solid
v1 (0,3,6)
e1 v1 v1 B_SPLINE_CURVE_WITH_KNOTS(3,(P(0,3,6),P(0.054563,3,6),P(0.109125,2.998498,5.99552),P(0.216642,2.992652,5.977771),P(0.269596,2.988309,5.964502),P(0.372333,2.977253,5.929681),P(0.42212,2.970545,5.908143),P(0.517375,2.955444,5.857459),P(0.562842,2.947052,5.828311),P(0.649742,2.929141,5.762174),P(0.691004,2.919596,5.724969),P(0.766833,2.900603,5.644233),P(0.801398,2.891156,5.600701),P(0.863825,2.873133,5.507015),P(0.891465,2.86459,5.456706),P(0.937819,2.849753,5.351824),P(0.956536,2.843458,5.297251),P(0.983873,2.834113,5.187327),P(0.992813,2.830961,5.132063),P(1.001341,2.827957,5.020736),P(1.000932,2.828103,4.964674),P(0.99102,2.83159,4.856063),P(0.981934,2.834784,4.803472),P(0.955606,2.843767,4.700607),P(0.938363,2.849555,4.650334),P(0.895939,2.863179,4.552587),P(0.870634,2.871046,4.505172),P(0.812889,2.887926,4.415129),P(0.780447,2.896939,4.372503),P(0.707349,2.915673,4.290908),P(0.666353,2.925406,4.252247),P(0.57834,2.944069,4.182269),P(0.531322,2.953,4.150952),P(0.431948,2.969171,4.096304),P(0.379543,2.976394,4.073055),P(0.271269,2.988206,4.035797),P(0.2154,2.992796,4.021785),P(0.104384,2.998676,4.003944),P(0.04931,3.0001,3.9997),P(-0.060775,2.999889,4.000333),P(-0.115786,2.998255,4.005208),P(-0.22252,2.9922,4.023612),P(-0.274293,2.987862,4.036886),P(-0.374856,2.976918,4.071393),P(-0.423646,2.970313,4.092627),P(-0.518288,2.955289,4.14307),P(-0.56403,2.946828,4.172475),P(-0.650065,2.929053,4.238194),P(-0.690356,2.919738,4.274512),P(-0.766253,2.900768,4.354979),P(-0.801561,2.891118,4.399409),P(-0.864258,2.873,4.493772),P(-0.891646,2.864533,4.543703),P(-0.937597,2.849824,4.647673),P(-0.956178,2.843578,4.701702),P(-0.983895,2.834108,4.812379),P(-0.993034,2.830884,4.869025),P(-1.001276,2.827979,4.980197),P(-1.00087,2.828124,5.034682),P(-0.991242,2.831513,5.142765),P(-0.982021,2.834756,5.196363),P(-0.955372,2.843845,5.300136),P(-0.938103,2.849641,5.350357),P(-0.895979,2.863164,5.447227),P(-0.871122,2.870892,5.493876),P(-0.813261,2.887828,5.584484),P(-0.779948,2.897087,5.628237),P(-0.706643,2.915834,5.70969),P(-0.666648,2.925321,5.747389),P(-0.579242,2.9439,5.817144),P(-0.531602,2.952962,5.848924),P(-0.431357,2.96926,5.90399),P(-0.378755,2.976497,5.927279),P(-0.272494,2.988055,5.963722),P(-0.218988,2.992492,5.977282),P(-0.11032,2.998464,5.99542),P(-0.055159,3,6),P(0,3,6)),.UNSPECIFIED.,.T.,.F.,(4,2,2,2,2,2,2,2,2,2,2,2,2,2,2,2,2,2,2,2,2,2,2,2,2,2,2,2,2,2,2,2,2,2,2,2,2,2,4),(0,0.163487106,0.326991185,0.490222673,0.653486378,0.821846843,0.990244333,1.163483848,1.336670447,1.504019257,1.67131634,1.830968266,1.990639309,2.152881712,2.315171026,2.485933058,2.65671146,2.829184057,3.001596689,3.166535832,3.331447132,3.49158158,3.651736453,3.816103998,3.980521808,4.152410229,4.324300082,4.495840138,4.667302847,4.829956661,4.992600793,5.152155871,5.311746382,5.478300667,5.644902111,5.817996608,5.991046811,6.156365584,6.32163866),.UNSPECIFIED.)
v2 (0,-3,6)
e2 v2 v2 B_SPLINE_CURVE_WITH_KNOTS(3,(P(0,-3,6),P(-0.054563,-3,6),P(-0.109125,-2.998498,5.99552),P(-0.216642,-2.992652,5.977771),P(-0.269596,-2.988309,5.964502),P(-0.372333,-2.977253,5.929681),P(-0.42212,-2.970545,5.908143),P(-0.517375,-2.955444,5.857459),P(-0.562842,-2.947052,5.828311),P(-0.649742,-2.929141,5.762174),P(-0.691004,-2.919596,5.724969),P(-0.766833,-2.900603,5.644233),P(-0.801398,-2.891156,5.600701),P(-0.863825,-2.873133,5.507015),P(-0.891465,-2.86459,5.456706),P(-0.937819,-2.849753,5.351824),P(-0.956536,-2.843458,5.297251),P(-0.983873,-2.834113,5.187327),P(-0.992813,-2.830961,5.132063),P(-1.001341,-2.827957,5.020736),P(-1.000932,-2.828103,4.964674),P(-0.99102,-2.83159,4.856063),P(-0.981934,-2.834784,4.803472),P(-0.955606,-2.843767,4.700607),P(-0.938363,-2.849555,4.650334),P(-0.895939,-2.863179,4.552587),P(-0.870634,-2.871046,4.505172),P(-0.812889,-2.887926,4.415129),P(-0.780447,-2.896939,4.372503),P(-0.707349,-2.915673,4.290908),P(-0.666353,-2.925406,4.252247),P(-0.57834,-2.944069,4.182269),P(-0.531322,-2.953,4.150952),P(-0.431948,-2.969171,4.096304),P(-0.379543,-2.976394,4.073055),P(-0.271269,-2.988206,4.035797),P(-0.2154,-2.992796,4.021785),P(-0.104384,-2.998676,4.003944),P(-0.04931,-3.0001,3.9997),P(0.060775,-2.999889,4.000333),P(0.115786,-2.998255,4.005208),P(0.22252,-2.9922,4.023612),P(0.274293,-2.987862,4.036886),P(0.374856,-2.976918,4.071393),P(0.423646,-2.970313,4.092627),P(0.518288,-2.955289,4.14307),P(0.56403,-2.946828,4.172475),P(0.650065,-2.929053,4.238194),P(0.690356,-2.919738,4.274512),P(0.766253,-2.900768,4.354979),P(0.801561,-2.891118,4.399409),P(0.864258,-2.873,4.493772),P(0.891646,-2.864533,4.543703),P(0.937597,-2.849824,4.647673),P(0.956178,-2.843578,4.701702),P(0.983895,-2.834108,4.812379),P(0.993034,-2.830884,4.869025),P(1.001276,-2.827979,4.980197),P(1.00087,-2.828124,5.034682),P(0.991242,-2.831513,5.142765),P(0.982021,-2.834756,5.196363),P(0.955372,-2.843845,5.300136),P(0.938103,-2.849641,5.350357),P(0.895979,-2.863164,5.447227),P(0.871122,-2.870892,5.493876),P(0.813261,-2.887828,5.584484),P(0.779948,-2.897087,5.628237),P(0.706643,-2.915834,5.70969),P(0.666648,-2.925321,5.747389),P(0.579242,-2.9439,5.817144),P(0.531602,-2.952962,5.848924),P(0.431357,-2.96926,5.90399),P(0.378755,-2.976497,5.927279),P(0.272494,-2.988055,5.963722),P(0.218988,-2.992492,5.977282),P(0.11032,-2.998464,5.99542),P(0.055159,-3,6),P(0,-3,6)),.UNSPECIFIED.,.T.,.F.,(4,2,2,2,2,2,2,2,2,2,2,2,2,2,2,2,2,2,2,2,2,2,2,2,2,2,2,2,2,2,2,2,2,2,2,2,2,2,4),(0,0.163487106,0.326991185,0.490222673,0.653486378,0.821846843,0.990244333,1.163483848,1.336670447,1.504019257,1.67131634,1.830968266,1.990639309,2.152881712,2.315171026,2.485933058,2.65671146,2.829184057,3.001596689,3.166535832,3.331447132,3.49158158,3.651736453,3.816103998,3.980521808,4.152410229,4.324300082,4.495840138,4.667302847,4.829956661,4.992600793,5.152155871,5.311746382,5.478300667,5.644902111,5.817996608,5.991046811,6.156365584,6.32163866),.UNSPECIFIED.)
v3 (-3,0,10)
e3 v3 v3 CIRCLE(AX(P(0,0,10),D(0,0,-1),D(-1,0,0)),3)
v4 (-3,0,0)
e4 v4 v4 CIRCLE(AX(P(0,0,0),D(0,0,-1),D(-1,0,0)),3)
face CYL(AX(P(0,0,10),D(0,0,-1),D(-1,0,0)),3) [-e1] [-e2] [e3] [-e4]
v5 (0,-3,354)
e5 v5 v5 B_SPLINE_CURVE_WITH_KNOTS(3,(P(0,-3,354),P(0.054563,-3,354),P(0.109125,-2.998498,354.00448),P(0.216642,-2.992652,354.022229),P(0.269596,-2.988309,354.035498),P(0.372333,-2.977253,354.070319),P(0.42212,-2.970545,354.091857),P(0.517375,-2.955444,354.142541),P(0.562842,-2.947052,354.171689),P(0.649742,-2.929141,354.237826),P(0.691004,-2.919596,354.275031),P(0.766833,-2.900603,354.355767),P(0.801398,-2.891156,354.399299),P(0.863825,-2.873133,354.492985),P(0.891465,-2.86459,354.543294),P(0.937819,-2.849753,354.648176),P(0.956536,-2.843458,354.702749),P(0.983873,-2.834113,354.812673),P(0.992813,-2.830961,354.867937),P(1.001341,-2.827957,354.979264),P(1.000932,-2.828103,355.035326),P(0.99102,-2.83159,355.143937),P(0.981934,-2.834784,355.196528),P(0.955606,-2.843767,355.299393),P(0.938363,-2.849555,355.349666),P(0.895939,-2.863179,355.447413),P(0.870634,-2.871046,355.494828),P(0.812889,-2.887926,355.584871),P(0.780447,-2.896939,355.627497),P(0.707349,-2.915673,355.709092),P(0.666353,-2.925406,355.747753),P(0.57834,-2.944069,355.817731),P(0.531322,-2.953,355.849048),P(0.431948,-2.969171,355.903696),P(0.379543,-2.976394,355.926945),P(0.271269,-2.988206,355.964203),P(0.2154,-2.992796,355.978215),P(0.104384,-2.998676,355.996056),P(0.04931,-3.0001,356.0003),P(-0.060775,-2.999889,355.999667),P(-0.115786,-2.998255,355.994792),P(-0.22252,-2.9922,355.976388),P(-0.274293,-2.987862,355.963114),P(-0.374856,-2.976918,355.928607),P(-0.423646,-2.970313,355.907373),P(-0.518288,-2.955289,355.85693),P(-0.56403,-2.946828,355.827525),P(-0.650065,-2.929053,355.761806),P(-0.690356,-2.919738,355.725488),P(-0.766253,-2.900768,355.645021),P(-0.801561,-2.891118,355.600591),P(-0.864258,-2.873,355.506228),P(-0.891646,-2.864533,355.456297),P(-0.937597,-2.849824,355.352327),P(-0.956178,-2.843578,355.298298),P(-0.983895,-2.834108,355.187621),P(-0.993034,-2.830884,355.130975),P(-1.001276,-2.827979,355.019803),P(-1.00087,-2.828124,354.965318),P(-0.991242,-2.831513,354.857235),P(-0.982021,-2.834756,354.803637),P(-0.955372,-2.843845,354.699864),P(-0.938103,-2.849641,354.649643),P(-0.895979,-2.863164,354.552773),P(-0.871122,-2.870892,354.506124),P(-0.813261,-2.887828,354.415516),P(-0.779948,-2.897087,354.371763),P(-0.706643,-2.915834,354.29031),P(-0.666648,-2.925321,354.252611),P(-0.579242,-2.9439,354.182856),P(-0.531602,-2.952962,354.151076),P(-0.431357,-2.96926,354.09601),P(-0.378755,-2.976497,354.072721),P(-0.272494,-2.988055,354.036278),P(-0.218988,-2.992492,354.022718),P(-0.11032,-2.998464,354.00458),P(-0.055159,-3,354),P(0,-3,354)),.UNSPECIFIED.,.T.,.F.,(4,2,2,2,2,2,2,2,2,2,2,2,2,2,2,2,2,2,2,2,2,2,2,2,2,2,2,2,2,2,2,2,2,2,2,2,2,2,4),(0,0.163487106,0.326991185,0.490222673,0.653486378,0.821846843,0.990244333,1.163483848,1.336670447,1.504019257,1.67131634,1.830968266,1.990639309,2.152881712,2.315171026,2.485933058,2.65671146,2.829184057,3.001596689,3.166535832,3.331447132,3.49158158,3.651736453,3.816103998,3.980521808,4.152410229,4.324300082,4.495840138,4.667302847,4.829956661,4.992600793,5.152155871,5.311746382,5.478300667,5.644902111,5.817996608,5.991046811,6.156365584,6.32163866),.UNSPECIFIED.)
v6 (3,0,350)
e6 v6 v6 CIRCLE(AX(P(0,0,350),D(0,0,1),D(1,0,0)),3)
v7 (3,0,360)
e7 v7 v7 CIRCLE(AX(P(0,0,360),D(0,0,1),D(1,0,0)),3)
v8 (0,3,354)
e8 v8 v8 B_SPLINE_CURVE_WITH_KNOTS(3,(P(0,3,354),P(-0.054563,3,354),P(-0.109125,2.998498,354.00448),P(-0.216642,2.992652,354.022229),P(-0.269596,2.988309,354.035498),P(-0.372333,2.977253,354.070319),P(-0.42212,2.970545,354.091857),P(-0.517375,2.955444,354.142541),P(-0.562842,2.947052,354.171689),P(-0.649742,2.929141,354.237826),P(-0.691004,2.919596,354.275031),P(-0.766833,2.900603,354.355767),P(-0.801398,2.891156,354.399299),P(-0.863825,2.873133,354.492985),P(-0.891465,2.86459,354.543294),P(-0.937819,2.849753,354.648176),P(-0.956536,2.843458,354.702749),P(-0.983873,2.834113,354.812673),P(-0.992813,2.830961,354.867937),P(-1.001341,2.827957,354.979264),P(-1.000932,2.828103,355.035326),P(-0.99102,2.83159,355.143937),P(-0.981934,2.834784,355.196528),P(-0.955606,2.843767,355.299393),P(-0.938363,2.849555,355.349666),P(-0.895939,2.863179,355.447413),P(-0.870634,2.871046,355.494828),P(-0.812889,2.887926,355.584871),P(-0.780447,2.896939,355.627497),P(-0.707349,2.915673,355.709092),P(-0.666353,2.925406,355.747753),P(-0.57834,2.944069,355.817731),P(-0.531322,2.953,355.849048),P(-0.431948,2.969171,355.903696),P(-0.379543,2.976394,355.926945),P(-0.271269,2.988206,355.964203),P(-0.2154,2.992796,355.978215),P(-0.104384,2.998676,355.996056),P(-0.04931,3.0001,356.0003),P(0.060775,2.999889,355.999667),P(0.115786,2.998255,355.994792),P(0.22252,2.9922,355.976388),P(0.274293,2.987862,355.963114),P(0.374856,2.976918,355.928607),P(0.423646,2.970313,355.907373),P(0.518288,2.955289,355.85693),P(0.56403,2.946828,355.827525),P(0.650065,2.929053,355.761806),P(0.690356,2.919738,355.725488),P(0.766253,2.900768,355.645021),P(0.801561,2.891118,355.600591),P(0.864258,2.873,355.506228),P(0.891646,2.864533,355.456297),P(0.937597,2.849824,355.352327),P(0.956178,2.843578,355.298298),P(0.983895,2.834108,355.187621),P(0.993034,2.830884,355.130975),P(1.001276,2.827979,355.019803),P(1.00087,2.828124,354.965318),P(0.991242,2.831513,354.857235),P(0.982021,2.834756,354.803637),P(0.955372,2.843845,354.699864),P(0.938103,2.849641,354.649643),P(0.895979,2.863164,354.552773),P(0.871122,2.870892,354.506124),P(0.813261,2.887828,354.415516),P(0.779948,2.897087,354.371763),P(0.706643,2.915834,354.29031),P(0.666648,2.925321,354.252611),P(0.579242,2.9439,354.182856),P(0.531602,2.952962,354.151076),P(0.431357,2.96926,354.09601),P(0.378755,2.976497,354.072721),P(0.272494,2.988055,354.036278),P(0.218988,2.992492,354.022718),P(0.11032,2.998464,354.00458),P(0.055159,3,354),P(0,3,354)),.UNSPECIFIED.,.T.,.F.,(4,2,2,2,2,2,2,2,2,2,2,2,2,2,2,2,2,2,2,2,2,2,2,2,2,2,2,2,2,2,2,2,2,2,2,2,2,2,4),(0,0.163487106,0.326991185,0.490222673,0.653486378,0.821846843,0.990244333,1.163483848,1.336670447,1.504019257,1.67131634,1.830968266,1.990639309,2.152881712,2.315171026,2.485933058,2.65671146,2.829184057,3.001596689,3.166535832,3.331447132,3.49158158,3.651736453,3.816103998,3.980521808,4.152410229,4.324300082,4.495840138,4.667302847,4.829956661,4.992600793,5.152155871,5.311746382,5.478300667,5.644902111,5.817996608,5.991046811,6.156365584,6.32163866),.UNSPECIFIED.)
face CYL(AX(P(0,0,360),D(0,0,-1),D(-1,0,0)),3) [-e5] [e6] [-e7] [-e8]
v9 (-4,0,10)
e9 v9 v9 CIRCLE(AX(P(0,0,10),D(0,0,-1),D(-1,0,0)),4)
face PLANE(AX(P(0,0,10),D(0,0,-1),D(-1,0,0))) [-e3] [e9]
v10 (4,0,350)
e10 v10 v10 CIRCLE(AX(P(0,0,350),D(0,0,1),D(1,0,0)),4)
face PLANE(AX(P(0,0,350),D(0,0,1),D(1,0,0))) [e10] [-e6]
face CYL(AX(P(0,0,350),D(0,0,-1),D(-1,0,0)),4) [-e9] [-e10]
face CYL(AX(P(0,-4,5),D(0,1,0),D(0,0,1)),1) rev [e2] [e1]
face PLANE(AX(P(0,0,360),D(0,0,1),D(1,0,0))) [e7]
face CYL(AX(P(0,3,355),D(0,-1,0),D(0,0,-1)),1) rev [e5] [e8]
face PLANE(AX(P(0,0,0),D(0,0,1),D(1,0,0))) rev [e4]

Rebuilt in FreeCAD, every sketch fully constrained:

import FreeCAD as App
import Part
import Sketcher
from FreeCAD import Vector
Q = App.Units.Quantity

doc = App.newDocument("Part")
body = doc.addObject("PartDesign::Body", "Body")

sketch1 = body.newObject("Sketcher::SketchObject", "Sketch")
sketch1.AttachmentSupport = (doc.getObject("XY_Plane"), [""])
sketch1.MapMode = "FlatFace"
sketch1.addGeometry(Part.Circle(Vector(0, 0, 0), Vector(0, 0, 1), 4), False)
sketch1.addConstraint(Sketcher.Constraint("Coincident", 0, 3, -1, 1))
sketch1.addConstraint(Sketcher.Constraint("Diameter", 0, Q("8 mm")))
pad1 = body.newObject("PartDesign::Pad", "Pad")
pad1.Profile = sketch1
pad1.Length = 350

sketch2 = body.newObject("Sketcher::SketchObject", "Sketch001")
sketch2.AttachmentSupport = (doc.getObject("XY_Plane"), [""])
sketch2.MapMode = "FlatFace"
sketch2.AttachmentOffset = App.Placement(Vector(0, 0, 350), App.Rotation())
sketch2.addGeometry(Part.Circle(Vector(0, 0, 0), Vector(0, 0, 1), 3), False)
sketch2.addConstraint(Sketcher.Constraint("Coincident", 0, 3, -1, 1))
sketch2.addConstraint(Sketcher.Constraint("Diameter", 0, Q("6 mm")))
pad2 = body.newObject("PartDesign::Pad", "Pad001")
pad2.Profile = sketch2
pad2.Length = 10

sketch3 = body.newObject("Sketcher::SketchObject", "Sketch002")
sketch3.AttachmentSupport = (doc.getObject("XZ_Plane"), [""])
sketch3.MapMode = "FlatFace"
sketch3.addGeometry(Part.Circle(Vector(0, 355, 0), Vector(0, 0, 1), 1), False)
sketch3.addConstraint(Sketcher.Constraint("PointOnObject", 0, 3, -2))
sketch3.addConstraint(Sketcher.Constraint("Diameter", 0, Q("2 mm")))
sketch3.addConstraint(Sketcher.Constraint("DistanceY", -1, 1, 0, 3, Q("355 mm")))
pocket1 = body.newObject("PartDesign::Pocket", "Pocket")
pocket1.Profile = sketch3
pocket1.Length = 6
pocket1.Midplane = True

sketch4 = body.newObject("Sketcher::SketchObject", "Sketch003")
sketch4.AttachmentSupport = (doc.getObject("XY_Plane"), [""])
sketch4.MapMode = "FlatFace"
sketch4.addGeometry(Part.Circle(Vector(0, 0, 0), Vector(0, 0, 1), 4), False)
sketch4.addGeometry(Part.Circle(Vector(0, 0, 0), Vector(0, 0, 1), 3), False)
sketch4.addConstraint(Sketcher.Constraint("Coincident", 0, 3, -1, 1))
sketch4.addConstraint(Sketcher.Constraint("Coincident", 1, 3, -1, 1))
sketch4.addConstraint(Sketcher.Constraint("Diameter", 0, Q("8 mm")))
sketch4.addConstraint(Sketcher.Constraint("Diameter", 1, Q("6 mm")))
pocket2 = body.newObject("PartDesign::Pocket", "Pocket001")
pocket2.Profile = sketch4
pocket2.Length = 10
pocket2.Reversed = True

sketch5 = body.newObject("Sketcher::SketchObject", "Sketch004")
sketch5.AttachmentSupport = (doc.getObject("XZ_Plane"), [""])
sketch5.MapMode = "FlatFace"
sketch5.addGeometry(Part.Circle(Vector(0, 5, 0), Vector(0, 0, 1), 1), False)
sketch5.addConstraint(Sketcher.Constraint("PointOnObject", 0, 3, -2))
sketch5.addConstraint(Sketcher.Constraint("Diameter", 0, Q("2 mm")))
sketch5.addConstraint(Sketcher.Constraint("DistanceY", -1, 1, 0, 3, Q("5 mm")))
pocket3 = body.newObject("PartDesign::Pocket", "Pocket002")
pocket3.Profile = sketch5
pocket3.Type = "ThroughAll"
pocket3.Midplane = True

doc.recompute()
